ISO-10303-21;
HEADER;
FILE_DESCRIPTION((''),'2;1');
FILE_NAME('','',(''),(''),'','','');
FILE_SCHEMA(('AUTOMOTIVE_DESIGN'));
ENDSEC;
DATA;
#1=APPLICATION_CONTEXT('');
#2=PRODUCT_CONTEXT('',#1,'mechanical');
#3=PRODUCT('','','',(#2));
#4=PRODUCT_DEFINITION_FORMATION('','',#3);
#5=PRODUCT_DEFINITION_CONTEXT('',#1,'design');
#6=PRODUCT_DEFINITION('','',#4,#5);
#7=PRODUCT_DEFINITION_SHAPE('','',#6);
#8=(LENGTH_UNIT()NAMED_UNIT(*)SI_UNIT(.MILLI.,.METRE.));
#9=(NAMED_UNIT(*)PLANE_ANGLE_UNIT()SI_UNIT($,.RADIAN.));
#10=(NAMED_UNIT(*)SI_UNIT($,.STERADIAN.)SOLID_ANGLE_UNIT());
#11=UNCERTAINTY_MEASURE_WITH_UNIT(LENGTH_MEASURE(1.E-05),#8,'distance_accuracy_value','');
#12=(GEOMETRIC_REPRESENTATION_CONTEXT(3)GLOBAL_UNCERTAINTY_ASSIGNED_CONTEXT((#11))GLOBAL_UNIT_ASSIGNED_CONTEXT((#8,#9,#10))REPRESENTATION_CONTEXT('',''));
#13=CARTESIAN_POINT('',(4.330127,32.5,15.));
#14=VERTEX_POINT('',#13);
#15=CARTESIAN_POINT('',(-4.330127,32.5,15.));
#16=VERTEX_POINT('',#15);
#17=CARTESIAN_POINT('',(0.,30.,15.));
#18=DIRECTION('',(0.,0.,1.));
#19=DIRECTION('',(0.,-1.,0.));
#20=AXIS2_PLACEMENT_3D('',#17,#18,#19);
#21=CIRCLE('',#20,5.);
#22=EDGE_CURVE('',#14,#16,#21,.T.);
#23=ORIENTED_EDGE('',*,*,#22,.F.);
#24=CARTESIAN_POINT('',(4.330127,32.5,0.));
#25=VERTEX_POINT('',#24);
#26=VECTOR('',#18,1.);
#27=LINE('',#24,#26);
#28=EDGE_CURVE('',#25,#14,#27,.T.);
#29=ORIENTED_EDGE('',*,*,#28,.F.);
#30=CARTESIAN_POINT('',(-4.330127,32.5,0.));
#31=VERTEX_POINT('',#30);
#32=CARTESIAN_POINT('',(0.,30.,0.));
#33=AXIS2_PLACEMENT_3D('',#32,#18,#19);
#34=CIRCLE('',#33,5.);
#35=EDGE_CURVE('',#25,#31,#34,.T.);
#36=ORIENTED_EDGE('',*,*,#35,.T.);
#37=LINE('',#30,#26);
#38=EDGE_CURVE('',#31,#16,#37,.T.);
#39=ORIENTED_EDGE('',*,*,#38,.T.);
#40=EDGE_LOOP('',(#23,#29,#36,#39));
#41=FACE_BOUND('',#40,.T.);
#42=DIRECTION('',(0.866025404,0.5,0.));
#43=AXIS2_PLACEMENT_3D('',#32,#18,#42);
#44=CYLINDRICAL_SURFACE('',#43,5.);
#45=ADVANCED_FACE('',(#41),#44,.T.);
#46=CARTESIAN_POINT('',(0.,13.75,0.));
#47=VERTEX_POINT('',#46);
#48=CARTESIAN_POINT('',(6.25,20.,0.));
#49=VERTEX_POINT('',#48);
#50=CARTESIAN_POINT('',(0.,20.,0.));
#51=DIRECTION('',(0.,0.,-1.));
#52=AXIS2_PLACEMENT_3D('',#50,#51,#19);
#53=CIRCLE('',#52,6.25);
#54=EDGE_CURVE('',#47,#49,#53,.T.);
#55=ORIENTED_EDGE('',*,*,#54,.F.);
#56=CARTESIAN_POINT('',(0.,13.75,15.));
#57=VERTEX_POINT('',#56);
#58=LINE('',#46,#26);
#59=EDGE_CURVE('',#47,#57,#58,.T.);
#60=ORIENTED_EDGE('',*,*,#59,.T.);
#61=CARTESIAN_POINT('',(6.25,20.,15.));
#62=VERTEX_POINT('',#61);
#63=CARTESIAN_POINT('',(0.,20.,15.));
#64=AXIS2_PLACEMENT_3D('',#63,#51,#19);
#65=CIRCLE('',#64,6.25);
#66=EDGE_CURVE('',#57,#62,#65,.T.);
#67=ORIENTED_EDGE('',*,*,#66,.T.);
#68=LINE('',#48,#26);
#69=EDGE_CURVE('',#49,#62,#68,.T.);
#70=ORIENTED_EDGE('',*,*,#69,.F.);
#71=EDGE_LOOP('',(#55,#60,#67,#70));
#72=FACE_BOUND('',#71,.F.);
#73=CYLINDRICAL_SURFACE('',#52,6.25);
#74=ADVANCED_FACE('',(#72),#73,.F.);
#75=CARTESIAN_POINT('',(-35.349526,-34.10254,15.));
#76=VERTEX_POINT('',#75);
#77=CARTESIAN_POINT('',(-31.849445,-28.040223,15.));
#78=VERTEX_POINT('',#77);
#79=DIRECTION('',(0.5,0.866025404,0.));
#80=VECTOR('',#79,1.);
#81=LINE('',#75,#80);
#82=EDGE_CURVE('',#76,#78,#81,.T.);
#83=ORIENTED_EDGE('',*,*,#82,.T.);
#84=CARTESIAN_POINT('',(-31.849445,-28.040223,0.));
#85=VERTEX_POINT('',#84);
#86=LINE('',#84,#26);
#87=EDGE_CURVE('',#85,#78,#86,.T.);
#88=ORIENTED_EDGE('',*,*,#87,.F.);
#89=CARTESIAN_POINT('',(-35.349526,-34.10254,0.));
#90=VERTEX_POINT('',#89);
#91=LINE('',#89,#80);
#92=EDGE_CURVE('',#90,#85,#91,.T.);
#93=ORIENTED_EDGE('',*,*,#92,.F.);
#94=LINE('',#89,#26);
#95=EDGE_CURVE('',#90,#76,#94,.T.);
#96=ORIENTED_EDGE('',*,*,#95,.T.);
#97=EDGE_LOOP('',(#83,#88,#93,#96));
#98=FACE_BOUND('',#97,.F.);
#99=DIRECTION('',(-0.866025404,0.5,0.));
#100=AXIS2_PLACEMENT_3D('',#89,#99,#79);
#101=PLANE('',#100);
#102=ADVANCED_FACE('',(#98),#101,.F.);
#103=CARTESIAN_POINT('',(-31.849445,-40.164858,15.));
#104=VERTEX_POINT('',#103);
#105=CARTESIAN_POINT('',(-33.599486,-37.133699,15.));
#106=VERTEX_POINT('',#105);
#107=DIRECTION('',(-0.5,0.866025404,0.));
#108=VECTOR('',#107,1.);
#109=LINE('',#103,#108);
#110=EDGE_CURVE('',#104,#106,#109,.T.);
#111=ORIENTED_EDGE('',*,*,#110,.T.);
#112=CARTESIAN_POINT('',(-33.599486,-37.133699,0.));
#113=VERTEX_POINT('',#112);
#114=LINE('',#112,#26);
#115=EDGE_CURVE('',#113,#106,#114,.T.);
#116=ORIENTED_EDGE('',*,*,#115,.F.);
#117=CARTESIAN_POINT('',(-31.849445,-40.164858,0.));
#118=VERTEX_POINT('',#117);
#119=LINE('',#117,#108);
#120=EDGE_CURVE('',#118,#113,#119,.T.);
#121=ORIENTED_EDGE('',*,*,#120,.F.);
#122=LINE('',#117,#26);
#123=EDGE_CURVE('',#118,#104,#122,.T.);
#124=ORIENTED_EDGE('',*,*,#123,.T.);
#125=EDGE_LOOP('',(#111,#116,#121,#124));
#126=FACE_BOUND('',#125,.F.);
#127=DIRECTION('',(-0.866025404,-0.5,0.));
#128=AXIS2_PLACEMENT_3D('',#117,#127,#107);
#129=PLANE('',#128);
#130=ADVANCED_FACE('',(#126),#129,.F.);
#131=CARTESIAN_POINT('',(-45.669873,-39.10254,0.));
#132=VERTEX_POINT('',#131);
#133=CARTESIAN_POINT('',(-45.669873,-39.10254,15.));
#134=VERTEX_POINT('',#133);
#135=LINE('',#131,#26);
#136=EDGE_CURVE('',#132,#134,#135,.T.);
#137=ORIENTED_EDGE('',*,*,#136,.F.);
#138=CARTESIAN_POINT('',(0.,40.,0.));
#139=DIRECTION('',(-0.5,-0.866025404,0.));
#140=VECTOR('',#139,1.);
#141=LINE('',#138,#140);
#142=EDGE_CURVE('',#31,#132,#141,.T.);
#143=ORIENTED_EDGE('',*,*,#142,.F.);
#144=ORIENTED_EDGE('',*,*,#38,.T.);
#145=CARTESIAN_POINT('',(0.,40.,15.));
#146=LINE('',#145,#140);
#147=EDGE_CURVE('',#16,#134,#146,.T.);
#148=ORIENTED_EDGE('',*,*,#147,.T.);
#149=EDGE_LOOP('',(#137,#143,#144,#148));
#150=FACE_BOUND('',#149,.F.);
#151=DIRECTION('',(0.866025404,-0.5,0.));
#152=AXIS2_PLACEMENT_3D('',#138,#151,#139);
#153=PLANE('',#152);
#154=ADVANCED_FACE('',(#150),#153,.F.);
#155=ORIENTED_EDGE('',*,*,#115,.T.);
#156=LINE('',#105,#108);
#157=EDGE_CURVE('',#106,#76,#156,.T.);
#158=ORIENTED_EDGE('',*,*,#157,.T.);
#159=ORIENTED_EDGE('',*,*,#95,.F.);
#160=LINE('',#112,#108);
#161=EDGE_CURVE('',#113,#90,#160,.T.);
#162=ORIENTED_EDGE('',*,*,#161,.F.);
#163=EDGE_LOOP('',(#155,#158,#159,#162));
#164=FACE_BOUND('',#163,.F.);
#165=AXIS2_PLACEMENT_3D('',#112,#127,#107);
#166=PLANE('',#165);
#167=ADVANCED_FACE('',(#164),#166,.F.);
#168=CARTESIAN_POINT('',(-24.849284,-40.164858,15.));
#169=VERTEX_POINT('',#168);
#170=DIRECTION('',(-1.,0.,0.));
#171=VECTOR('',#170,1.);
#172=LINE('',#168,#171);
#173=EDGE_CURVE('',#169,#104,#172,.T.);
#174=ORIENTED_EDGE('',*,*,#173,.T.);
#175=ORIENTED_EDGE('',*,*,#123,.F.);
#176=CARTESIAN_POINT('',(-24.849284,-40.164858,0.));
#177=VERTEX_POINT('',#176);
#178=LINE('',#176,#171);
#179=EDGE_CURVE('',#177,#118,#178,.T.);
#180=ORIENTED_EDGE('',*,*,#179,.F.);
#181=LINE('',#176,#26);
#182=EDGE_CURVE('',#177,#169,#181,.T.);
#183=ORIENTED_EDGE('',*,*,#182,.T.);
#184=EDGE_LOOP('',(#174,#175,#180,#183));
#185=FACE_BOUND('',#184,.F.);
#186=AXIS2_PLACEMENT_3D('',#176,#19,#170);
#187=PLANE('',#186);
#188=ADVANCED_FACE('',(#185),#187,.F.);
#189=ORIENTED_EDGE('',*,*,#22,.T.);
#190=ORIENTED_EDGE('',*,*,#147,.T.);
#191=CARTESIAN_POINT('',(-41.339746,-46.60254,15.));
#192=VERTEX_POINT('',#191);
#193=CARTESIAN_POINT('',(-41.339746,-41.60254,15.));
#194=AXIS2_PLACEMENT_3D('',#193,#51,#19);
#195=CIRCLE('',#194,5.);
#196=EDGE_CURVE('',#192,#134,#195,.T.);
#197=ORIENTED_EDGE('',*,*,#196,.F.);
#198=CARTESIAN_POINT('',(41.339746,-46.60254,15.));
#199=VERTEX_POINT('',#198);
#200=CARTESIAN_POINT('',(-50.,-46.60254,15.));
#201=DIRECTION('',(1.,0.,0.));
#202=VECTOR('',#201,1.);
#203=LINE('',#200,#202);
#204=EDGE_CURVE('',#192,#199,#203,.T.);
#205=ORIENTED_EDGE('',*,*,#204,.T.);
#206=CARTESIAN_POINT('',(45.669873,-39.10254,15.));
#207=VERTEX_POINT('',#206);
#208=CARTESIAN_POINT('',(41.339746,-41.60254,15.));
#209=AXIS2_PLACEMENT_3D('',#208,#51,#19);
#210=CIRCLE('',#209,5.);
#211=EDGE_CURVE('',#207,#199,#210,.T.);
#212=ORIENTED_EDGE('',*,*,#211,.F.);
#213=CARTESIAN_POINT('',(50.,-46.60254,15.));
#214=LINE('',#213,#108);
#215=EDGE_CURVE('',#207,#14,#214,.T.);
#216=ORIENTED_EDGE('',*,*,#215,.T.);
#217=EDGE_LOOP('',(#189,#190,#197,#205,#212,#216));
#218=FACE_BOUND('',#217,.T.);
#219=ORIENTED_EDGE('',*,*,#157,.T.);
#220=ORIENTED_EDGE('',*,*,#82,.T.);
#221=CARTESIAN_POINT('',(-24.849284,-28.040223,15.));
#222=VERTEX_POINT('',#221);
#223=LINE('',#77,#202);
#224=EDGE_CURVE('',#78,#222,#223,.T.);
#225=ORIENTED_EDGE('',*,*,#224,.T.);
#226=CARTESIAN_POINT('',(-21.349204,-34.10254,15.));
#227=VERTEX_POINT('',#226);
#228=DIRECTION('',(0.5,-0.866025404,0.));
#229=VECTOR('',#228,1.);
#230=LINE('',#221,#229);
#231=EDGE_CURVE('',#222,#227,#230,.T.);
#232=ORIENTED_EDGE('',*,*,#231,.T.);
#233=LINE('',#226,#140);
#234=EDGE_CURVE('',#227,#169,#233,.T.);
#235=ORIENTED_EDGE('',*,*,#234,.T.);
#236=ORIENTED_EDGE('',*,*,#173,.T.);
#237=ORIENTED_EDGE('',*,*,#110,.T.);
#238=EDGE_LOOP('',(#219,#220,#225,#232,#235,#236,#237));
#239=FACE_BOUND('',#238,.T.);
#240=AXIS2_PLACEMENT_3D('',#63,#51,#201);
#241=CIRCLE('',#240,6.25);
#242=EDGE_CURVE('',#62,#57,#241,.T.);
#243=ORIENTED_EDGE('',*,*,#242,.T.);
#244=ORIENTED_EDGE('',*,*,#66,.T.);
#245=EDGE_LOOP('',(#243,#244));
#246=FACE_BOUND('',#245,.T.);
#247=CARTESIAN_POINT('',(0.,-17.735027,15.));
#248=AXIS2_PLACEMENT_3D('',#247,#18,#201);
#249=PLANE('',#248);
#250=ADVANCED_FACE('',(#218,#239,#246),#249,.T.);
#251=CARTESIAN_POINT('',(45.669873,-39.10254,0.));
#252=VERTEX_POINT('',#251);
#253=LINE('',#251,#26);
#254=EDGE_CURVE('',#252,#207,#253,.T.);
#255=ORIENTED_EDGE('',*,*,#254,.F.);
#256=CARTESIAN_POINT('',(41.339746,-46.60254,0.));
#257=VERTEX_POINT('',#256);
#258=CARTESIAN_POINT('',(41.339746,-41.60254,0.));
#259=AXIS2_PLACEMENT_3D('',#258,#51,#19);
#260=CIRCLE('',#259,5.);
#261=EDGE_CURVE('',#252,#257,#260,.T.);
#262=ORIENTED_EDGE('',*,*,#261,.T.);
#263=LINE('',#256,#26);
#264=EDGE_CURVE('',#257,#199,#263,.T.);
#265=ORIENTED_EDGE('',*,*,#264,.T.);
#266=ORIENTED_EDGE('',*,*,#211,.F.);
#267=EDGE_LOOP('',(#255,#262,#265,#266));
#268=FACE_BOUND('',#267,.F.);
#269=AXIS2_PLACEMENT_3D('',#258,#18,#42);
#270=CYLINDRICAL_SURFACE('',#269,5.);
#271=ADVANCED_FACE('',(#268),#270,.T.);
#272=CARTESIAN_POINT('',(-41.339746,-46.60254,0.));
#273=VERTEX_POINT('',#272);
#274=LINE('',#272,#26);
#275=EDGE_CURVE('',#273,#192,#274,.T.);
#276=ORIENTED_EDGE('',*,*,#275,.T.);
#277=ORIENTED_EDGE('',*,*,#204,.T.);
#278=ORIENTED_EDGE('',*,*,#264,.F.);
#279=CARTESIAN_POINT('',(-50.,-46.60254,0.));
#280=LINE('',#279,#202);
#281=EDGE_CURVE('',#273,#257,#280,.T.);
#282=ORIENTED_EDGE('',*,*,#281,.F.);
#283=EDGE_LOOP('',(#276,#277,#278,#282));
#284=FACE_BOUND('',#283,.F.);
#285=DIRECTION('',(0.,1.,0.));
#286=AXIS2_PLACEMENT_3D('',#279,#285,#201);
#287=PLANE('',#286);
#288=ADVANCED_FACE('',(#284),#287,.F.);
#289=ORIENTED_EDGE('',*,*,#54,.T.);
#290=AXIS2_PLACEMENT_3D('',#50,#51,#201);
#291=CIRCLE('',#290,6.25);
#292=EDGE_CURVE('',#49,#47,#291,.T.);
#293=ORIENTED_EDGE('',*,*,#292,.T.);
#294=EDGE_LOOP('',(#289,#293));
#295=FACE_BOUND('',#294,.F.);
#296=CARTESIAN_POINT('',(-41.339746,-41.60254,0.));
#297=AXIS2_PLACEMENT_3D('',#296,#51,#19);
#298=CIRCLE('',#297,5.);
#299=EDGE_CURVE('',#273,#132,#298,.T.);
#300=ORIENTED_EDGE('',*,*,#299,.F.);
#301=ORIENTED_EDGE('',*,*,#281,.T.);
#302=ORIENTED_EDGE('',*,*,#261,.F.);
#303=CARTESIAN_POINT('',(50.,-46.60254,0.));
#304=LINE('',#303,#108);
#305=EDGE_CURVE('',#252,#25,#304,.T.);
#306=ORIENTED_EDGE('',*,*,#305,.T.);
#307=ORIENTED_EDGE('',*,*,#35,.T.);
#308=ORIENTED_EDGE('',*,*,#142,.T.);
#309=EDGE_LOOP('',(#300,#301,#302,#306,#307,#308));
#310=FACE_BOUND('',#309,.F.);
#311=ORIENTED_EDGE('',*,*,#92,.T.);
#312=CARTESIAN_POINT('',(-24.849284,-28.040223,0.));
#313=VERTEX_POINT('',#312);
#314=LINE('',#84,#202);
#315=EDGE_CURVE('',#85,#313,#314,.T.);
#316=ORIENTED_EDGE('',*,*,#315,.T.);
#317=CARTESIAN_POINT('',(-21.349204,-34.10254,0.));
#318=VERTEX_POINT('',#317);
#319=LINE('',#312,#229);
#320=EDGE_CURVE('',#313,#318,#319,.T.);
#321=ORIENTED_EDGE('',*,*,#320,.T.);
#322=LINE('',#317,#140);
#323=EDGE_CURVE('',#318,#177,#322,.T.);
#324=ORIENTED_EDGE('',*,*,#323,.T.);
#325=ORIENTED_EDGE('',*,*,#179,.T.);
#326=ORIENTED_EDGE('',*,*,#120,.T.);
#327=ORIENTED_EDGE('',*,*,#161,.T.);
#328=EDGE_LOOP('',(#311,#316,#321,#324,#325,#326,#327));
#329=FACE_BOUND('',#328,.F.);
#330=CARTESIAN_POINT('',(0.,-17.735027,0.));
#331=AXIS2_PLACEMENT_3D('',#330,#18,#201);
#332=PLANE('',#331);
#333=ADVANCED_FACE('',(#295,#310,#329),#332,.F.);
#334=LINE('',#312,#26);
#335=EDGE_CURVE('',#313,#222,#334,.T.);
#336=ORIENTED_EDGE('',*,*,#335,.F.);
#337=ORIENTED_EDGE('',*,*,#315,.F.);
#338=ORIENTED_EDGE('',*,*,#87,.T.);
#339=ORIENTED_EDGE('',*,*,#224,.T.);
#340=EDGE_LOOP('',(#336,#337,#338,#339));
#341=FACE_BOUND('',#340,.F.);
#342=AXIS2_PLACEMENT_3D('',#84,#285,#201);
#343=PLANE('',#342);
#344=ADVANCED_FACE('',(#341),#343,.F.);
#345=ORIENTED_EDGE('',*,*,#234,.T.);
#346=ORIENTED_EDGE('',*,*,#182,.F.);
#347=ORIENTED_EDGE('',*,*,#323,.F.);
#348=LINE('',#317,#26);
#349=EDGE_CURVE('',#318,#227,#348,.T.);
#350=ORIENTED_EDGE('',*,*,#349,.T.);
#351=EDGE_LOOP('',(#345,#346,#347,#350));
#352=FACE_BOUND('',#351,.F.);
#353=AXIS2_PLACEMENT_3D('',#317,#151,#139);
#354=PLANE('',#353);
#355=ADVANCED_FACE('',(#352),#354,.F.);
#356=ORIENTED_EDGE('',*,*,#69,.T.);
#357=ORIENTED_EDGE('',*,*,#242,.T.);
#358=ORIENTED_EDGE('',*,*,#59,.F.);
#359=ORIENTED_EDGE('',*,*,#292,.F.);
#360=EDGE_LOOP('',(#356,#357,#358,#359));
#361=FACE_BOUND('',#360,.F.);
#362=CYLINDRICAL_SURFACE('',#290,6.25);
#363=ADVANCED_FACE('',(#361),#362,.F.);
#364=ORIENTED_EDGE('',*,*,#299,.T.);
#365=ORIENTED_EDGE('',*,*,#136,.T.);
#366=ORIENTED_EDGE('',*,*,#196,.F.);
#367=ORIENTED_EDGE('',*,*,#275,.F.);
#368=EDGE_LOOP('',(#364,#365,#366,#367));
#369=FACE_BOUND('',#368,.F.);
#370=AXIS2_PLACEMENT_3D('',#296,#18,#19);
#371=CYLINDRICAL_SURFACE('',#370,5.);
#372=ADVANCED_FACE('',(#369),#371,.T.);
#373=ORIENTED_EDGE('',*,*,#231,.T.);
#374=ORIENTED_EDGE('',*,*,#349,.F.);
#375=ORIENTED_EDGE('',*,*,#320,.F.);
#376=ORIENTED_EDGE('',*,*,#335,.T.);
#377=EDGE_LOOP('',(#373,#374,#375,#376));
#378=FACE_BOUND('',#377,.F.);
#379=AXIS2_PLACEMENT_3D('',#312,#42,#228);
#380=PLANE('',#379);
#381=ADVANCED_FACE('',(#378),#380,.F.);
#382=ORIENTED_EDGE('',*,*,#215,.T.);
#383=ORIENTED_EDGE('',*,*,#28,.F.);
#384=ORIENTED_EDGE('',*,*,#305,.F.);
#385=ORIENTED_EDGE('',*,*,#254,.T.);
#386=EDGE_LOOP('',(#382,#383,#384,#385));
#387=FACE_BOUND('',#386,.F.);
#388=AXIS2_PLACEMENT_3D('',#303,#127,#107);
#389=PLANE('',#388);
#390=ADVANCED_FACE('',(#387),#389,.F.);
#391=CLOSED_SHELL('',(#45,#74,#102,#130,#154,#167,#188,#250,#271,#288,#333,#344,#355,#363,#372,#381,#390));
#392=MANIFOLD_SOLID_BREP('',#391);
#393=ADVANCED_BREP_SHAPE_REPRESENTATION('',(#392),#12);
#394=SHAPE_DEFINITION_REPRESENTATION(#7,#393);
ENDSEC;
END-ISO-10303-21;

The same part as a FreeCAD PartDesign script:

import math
import FreeCAD as App
import Part
import Sketcher

V = App.Vector
Q = App.Units.Quantity


def edges_at(feature, points):
    """Names of the edges that pass closest to the given points."""
    edges = feature.Shape.Edges
    near = lambda p: min(range(len(edges)), key=lambda i: edges[i].distToShape(Part.Vertex(*p))[0])
    return sorted({f"Edge{near(p) + 1}" for p in points})

doc = App.newDocument("Part")
body = doc.addObject("PartDesign::Body", "Body")

# Sketch on XY plane
sketch1 = body.newObject("Sketcher::SketchObject", "Sketch")
sketch1.AttachmentSupport = (doc.getObject("XY_Plane"), [""])
sketch1.MapMode = "FlatFace"
sketch1.addGeometry([
    Part.LineSegment(V(50, -46.60254, 0), V(0, 40, 0)),  # 0
    Part.LineSegment(V(0, 40, 0), V(-50, -46.60254, 0)),  # 1
    Part.LineSegment(V(-50, -46.60254, 0), V(50, -46.60254, 0)),  # 2
    Part.LineSegment(V(-24.849284, -40.164858, 0), V(-31.849445, -40.164858, 0)),  # 3
    Part.LineSegment(V(-31.849445, -40.164858, 0), V(-33.599486, -37.133699, 0)),  # 4
    Part.LineSegment(V(-33.599486, -37.133699, 0), V(-35.349526, -34.10254, 0)),  # 5
    Part.LineSegment(V(-35.349526, -34.10254, 0), V(-31.849445, -28.040223, 0)),  # 6
    Part.LineSegment(V(-31.849445, -28.040223, 0), V(-24.849284, -28.040223, 0)),  # 7
    Part.LineSegment(V(-24.849284, -28.040223, 0), V(-21.349204, -34.10254, 0)),  # 8
    Part.LineSegment(V(-21.349204, -34.10254, 0), V(-24.849284, -40.164858, 0)),  # 9
    Part.ArcOfCircle(Part.Circle(V(0, 20, 0), V(0, 0, 1), 6.25), math.radians(-90), math.radians(0)),  # 10
    Part.ArcOfCircle(Part.Circle(V(0, 20, 0), V(0, 0, 1), 6.25), math.radians(0), math.radians(270)),  # 11
], False)
sketch1.addConstraint([
    Sketcher.Constraint("Coincident", 0, 2, 1, 1),
    Sketcher.Constraint("Coincident", 1, 2, 2, 1),
    Sketcher.Constraint("Coincident", 2, 2, 0, 1),
    Sketcher.Constraint("Coincident", 3, 2, 4, 1),
    Sketcher.Constraint("Coincident", 4, 2, 5, 1),
    Sketcher.Constraint("Coincident", 5, 2, 6, 1),
    Sketcher.Constraint("Coincident", 6, 2, 7, 1),
    Sketcher.Constraint("Coincident", 7, 2, 8, 1),
    Sketcher.Constraint("Coincident", 8, 2, 9, 1),
    Sketcher.Constraint("Coincident", 9, 2, 3, 1),
    Sketcher.Constraint("Tangent", 10, 1, 11, 2),
    Sketcher.Constraint("Coincident", 11, 1, 10, 2),
    Sketcher.Constraint("Horizontal", 2),
    Sketcher.Constraint("Horizontal", 3),
    Sketcher.Constraint("Horizontal", 7),
    Sketcher.Constraint("PointOnObject", 10, 3, -2),
    Sketcher.Constraint("PointOnObject", 0, 2, -2),
    Sketcher.Constraint("PointOnObject", 10, 1, -2),
    Sketcher.Constraint("Parallel", 0, 4),
    Sketcher.Constraint("Parallel", 4, 5),
    Sketcher.Constraint("Parallel", 1, 6),
    Sketcher.Constraint("Parallel", 5, 8),
    Sketcher.Constraint("Parallel", 6, 9),
    Sketcher.Constraint("Horizontal", 5, 2, 8, 2),
    Sketcher.Constraint("Horizontal", 10, 3, 11, 1),
    Sketcher.Constraint("Vertical", 3, 2, 6, 2),
    Sketcher.Constraint("Vertical", 7, 2, 9, 2),
    Sketcher.Constraint("Equal", 4, 5),
    Sketcher.Constraint("DistanceX", 2, 1, 2, 2, 100.0),
    Sketcher.Constraint("Angle", 0, Q("120 deg")),
    Sketcher.Constraint("Radius", 10, 6.25),
    Sketcher.Constraint("DistanceY", -1, 1, 10, 3, 20.0),
    Sketcher.Constraint("DistanceY", -1, 1, 0, 2, 40.0),
    Sketcher.Constraint("DistanceY", 1, 2, 5, 2, 12.5),
    Sketcher.Constraint("DistanceX", 3, 2, 3, 1, 7.000161),
    Sketcher.Constraint("DistanceY", 4, 2, -1, 1, 37.133699),
    Sketcher.Constraint("DistanceX", 3, 2, -1, 1, 31.849445),
])
pad1 = body.newObject("PartDesign::Pad", "Pad")
pad1.Profile = sketch1
pad1.Length = 15
doc.recompute()

fillet = body.newObject("PartDesign::Fillet", "Fillet")
fillet.Base = (pad1, edges_at(pad1, [(-50, -46.603, 7.5), (50, -46.603, 7.5), (0, 40, 7.5)]))
fillet.Radius = 5

doc.recompute()
